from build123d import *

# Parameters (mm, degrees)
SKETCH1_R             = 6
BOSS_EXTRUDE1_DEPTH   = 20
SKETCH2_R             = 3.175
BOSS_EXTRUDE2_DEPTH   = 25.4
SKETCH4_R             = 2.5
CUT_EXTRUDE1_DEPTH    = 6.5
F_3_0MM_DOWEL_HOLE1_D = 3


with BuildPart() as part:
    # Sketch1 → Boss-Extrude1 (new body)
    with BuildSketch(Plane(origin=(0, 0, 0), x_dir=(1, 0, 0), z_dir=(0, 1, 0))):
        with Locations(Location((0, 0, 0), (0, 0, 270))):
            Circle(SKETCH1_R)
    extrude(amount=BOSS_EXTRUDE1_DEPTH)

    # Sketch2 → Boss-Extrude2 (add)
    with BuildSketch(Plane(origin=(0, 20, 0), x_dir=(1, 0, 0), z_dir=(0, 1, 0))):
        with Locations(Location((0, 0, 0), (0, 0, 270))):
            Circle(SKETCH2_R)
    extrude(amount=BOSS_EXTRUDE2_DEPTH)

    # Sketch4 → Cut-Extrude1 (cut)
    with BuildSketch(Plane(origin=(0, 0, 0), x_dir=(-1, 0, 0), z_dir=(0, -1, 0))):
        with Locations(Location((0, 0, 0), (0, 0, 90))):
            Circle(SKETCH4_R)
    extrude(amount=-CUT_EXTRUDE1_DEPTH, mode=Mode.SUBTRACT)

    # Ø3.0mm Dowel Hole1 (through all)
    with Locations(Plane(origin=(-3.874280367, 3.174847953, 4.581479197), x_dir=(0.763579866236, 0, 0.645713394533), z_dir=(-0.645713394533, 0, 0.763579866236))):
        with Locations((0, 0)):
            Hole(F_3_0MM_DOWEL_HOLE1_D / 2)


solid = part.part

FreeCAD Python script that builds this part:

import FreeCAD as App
import Part
import Sketcher
from FreeCAD import Vector

doc = App.newDocument("Part")
body = doc.addObject("PartDesign::Body", "Body")

# Sketch on XZ plane
sketch1 = body.newObject("Sketcher::SketchObject", "Sketch")
sketch1.AttachmentSupport = (doc.getObject("XZ_Plane"), [""])
sketch1.MapMode = "FlatFace"
sketch1.addGeometry(Part.Circle(Vector(0, 0, 0), Vector(0, 0, 1), 6), False)
sketch1.addConstraint(Sketcher.Constraint("Coincident", 0, 3, -1, 1))
sketch1.addConstraint(Sketcher.Constraint("Diameter", 0, 12.0))
pad1 = body.newObject("PartDesign::Pad", "Pad")
pad1.Profile = sketch1
pad1.Length = 20
pad1.Reversed = True

# Sketch on XZ plane
sketch2 = body.newObject("Sketcher::SketchObject", "Sketch001")
sketch2.AttachmentSupport = (doc.getObject("XZ_Plane"), [""])
sketch2.MapMode = "FlatFace"
sketch2.AttachmentOffset = App.Placement(Vector(0, 0, -20), App.Rotation())
sketch2.addGeometry(Part.Circle(Vector(0, 0, 0), Vector(0, 0, 1), 3.175), False)
sketch2.addConstraint(Sketcher.Constraint("Coincident", 0, 3, -1, 1))
sketch2.addConstraint(Sketcher.Constraint("Diameter", 0, 6.35))
pad2 = body.newObject("PartDesign::Pad", "Pad001")
pad2.Profile = sketch2
pad2.Length = 25.4
pad2.Reversed = True

# Sketch on XZ plane
sketch3 = body.newObject("Sketcher::SketchObject", "Sketch002")
sketch3.AttachmentSupport = (doc.getObject("XZ_Plane"), [""])
sketch3.MapMode = "FlatFace"
sketch3.addGeometry(Part.Circle(Vector(0, 0, 0), Vector(0, 0, 1), 2.5), False)
sketch3.addConstraint(Sketcher.Constraint("Coincident", 0, 3, -1, 1))
sketch3.addConstraint(Sketcher.Constraint("Diameter", 0, 5.0))
pocket1 = body.newObject("PartDesign::Pocket", "Pocket")
pocket1.Profile = sketch3
pocket1.Length = 6.5

# Sketch on an angled plane
sketch4 = body.newObject("Sketcher::SketchObject", "Sketch003")
sketch4.Placement = App.Placement(Vector(-3.87428, 0, 4.581479), App.Rotation(Vector(0.763579866, 0, 0.645713395), Vector(0, 1, 0), Vector(-0.645713395, 0, 0.763579866), "ZXY"))
sketch4.addGeometry(Part.Circle(Vector(0, 3.174848, 0), Vector(0, 0, 1), 1.5), False)
sketch4.addConstraint(Sketcher.Constraint("PointOnObject", 0, 3, -2))
sketch4.addConstraint(Sketcher.Constraint("Diameter", 0, 3.0))
sketch4.addConstraint(Sketcher.Constraint("DistanceY", -1, 1, 0, 3, 3.174848))
doc.recompute()
hole = body.newObject("PartDesign::Hole", "Hole")
hole.Profile = sketch4
hole.ThreadType = "None"
hole.Diameter = 3
hole.DepthType = "ThroughAll"

doc.recompute()
